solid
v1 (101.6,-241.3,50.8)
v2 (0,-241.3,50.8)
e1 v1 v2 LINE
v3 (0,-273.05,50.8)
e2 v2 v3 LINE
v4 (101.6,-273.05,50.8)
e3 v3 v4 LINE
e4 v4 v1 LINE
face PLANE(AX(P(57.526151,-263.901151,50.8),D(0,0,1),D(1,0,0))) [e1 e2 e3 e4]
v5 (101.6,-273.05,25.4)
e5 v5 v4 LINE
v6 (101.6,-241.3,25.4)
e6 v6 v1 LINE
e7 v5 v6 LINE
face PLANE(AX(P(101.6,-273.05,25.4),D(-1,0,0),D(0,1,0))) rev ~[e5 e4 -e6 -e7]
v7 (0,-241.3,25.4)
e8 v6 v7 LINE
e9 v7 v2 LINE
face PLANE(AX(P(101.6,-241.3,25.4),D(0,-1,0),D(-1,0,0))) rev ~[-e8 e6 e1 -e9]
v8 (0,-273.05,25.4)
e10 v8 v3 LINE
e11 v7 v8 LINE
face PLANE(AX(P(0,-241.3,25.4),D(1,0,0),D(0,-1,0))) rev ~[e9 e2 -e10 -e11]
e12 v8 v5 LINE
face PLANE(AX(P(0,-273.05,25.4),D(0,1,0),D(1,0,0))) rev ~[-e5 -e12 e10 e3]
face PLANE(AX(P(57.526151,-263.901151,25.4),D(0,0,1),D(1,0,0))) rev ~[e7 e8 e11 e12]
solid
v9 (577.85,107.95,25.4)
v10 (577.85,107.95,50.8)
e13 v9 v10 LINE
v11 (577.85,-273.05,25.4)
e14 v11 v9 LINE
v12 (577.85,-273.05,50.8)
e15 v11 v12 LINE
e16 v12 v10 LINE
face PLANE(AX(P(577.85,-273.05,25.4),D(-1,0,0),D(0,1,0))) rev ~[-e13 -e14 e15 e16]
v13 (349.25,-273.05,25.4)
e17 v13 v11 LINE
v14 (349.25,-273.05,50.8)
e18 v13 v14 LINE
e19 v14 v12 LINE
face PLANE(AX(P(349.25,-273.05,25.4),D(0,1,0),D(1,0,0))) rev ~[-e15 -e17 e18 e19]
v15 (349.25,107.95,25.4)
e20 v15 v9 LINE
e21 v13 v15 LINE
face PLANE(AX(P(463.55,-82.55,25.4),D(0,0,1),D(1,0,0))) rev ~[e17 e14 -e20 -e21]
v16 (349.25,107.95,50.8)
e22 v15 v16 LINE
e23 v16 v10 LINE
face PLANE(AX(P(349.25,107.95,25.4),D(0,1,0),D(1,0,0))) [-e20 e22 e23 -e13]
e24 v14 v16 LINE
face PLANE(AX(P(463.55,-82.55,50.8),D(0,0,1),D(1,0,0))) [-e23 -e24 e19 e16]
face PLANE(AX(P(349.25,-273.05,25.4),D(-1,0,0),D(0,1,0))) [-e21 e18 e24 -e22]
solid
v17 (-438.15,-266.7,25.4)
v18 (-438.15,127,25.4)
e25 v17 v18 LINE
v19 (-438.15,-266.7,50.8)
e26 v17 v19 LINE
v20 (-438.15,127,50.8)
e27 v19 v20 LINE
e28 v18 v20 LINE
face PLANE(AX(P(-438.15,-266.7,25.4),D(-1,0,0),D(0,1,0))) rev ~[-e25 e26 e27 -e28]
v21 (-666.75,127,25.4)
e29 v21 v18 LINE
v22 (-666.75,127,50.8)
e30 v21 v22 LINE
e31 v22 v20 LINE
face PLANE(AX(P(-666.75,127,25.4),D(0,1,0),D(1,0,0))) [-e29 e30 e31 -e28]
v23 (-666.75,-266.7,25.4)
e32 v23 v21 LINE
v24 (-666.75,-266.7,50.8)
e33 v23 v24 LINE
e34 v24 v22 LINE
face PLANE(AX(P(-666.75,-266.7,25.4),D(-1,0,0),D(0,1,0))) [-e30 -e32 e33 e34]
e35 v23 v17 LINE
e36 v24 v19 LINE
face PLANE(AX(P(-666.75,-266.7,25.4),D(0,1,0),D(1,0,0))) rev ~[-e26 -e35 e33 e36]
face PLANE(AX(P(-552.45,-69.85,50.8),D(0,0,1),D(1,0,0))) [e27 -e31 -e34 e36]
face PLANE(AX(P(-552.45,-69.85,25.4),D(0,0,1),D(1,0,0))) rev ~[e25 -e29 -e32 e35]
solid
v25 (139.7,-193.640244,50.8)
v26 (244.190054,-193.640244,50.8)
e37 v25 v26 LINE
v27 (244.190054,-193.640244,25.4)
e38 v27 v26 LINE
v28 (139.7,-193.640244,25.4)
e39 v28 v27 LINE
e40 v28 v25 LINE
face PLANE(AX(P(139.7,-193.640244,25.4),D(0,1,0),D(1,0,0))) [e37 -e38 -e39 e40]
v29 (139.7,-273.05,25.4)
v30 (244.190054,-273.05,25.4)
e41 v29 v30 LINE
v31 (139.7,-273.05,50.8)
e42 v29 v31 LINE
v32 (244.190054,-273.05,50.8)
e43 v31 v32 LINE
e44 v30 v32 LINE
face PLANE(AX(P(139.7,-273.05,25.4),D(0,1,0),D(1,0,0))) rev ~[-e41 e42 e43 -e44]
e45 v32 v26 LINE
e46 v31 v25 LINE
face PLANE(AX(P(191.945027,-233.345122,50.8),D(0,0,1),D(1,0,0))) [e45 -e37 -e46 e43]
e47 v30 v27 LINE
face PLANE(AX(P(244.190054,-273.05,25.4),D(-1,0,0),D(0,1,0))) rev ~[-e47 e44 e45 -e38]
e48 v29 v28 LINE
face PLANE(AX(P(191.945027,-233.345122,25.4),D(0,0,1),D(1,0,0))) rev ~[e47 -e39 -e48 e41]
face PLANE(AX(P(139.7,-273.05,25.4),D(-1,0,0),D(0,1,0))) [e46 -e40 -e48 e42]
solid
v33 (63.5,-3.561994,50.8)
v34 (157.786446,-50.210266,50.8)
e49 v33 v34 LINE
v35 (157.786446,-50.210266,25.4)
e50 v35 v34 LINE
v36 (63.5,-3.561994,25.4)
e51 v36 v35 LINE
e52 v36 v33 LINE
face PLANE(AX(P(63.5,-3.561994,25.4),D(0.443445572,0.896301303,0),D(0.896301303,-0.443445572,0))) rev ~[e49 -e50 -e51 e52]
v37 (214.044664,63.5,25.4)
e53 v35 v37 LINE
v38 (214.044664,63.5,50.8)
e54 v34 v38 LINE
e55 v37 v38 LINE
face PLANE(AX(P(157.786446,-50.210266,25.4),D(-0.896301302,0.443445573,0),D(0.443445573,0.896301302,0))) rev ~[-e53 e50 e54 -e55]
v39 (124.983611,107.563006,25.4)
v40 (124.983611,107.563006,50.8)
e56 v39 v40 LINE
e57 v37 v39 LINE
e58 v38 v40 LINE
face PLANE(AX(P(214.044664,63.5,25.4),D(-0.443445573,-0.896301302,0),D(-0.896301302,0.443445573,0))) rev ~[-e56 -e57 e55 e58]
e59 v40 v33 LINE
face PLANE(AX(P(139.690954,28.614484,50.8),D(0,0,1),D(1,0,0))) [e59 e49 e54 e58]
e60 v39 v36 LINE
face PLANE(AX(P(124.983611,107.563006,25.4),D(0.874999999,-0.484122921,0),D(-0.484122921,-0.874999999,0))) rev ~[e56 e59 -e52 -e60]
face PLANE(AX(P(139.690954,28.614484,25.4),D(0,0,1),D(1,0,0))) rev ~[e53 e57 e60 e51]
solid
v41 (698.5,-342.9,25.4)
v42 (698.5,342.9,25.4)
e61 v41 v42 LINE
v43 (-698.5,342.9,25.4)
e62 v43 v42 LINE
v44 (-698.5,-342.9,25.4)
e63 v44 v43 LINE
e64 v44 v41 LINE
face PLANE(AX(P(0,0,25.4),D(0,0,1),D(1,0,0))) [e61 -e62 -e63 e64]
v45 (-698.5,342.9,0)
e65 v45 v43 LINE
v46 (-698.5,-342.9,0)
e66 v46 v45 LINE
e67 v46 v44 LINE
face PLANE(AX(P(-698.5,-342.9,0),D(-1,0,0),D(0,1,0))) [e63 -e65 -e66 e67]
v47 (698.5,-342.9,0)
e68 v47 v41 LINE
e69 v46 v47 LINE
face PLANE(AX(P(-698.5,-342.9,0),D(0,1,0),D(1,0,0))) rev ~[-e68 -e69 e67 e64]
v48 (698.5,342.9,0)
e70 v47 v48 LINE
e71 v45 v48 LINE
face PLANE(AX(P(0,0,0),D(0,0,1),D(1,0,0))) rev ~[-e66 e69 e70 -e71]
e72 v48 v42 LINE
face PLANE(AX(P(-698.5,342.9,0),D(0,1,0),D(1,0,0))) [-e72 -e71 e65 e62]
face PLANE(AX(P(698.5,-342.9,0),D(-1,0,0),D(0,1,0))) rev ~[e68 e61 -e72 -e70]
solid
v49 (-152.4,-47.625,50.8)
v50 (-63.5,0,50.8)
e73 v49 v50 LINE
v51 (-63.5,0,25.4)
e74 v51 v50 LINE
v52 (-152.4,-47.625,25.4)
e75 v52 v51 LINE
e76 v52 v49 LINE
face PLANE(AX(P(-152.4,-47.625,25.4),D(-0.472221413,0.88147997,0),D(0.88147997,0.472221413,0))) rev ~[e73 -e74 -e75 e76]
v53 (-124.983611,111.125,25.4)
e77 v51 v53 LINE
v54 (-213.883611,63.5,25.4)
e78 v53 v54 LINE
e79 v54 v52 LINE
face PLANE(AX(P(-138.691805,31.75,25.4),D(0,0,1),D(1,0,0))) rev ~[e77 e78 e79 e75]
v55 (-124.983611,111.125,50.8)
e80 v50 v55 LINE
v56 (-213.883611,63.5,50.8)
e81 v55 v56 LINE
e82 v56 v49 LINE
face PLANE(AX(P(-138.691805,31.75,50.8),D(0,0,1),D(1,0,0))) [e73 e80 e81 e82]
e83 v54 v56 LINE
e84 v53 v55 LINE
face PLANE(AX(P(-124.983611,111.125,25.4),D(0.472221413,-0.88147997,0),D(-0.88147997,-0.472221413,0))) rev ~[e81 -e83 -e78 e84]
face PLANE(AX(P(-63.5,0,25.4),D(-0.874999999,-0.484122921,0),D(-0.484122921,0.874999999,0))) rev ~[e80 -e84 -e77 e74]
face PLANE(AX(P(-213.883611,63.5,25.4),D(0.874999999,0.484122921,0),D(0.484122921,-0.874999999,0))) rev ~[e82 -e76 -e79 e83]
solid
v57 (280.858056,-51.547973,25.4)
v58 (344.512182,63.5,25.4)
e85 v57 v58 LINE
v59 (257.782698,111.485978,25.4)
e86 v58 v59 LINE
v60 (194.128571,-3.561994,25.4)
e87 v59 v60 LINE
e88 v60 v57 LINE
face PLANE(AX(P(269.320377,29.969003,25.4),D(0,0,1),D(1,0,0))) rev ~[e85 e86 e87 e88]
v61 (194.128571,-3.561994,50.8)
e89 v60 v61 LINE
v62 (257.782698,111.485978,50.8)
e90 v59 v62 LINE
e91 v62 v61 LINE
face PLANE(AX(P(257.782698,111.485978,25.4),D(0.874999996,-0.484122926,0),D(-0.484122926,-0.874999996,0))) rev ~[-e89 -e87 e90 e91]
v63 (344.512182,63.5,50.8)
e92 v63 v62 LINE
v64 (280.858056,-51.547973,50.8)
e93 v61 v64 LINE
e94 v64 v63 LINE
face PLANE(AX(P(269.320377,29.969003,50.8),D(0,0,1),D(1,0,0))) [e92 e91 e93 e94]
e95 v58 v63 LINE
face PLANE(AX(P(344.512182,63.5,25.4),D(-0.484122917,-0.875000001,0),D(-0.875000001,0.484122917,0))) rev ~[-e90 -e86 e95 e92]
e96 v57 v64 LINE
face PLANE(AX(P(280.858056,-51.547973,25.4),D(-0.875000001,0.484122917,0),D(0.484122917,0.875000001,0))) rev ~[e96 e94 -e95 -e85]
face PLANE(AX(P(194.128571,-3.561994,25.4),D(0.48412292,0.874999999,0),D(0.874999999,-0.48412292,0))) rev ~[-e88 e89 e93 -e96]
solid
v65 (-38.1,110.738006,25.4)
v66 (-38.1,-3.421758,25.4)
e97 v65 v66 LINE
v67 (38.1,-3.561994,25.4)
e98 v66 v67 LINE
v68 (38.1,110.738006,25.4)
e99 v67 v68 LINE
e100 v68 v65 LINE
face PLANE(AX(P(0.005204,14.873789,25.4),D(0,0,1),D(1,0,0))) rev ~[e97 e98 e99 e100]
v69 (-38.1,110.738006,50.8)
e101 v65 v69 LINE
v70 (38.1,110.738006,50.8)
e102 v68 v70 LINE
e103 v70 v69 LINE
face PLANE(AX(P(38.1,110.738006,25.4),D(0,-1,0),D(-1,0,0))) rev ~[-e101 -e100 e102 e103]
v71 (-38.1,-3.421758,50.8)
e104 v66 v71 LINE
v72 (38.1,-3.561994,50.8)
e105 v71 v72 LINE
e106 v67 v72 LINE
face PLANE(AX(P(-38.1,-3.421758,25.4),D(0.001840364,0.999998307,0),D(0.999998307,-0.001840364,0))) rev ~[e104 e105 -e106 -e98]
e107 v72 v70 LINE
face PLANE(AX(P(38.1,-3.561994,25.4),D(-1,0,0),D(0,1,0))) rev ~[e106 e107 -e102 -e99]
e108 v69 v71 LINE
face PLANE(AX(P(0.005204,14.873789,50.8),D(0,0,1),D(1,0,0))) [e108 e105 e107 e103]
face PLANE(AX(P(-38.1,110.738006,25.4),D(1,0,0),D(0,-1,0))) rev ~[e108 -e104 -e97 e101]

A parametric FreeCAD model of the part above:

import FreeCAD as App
import Part
import Sketcher
from FreeCAD import Vector
Q = App.Units.Quantity


def add_polygon(sketch, points):
    """Adds a closed chain of lines whose ends are joined by coincident constraints."""
    first, n = sketch.GeometryCount, len(points)
    for a, b in zip(points, points[1:] + points[:1]):
        sketch.addGeometry(Part.LineSegment(App.Vector(*a, 0), App.Vector(*b, 0)), False)
    for i in range(n):
        sketch.addConstraint(Sketcher.Constraint("Coincident", first + i, 2, first + (i + 1) % n, 1))

doc = App.newDocument("Part")
params = doc.addObject("Spreadsheet::Sheet", "Params")
for row, (alias, value) in enumerate([
    ("sketch1_width", "55 in"),
    ("sketch1_height", "27 in"),
    ("pad1_length", "1 in"),
    ("sketch2_width", "3 in"),
    ("sketch2_width2", "9 in"),
    ("sketch2_width3", "4 in"),
    ("sketch2_height", "15 in"),
    ("sketch2_length", "5 in"),
    ("pad2_length", "1 in"),
], start=1):
    params.set(f"A{row}", alias)
    params.set(f"B{row}", "=" + value)
    params.setAlias(f"B{row}", alias)

body = doc.addObject("PartDesign::Body", "Body")

sketch1 = body.newObject("Sketcher::SketchObject", "Sketch")
sketch1.AttachmentSupport = (doc.getObject("XY_Plane"), [""])
sketch1.MapMode = "FlatFace"
add_polygon(sketch1, [(-698, 343), (-698, -343), (698, -343), (698, 343)])
sketch1.addConstraint([
    Sketcher.Constraint("Vertical", 0),
    Sketcher.Constraint("Horizontal", 1),
    Sketcher.Constraint("Vertical", 2),
    Sketcher.Constraint("Horizontal", 3),
    Sketcher.Constraint("Symmetric", 0, 2, 2, 2, -1, 1),
    Sketcher.Constraint("DistanceX", 1, 1, 1, 2, Q("55 in")),
    Sketcher.Constraint("DistanceY", 0, 2, 0, 1, Q("27 in")),
])
sketch1.setExpression("Constraints[9]", "Params.sketch1_width")
sketch1.setExpression("Constraints[10]", "Params.sketch1_height")
pad1 = body.newObject("PartDesign::Pad", "Pad")
pad1.Profile = sketch1
pad1.setExpression("Length", "Params.pad1_length")
body2 = doc.addObject("PartDesign::Body", "Body001")
body2.AllowCompound = True

sketch2 = body2.newObject("Sketcher::SketchObject", "Sketch001")
sketch2.AttachmentSupport = (doc.getObject("XY_Plane001"), [""])
sketch2.MapMode = "FlatFace"
sketch2.AttachmentOffset = App.Placement(Vector(0, 0, 1 * 25.4), App.Rotation())
add_polygon(sketch2, [(-38, -3), (38, -4), (38, 111), (-38, 111)])
add_polygon(sketch2, [(-667, 127), (-667, -267), (-438, -267), (-438, 127)])
add_polygon(sketch2, [(349, 108), (349, -273), (578, -273), (578, 108)])
add_polygon(sketch2, [(0, -273), (102, -273), (102, -241), (0, -241)])
add_polygon(sketch2, [(140, -194), (140, -273), (244, -273), (244, -194)])
add_polygon(sketch2, [(125, 108), (64, -4), (158, -50), (214, 64)])
add_polygon(sketch2, [(258, 111), (194, -4), (281, -52), (345, 64)])
add_polygon(sketch2, [(-64, 0), (-125, 111), (-214, 64), (-152, -48)])
sketch2.addConstraint([
    Sketcher.Constraint("Vertical", 1),
    Sketcher.Constraint("Horizontal", 2),
    Sketcher.Constraint("Vertical", 3),
    Sketcher.Constraint("Vertical", 4),
    Sketcher.Constraint("Horizontal", 5),
    Sketcher.Constraint("Vertical", 6),
    Sketcher.Constraint("Horizontal", 7),
    Sketcher.Constraint("Vertical", 8),
    Sketcher.Constraint("Horizontal", 9),
    Sketcher.Constraint("Vertical", 10),
    Sketcher.Constraint("Horizontal", 11),
    Sketcher.Constraint("Horizontal", 12),
    Sketcher.Constraint("Vertical", 13),
    Sketcher.Constraint("Horizontal", 14),
    Sketcher.Constraint("Vertical", 15),
    Sketcher.Constraint("Vertical", 16),
    Sketcher.Constraint("Horizontal", 17),
    Sketcher.Constraint("Vertical", 18),
    Sketcher.Constraint("Horizontal", 19),
    Sketcher.Constraint("PointOnObject", 14, 2, -2),
    Sketcher.Constraint("PointOnObject", 31, 2, -1),
    Sketcher.Constraint("Perpendicular", 21, 22),
    Sketcher.Constraint("Perpendicular", 22, 23),
    Sketcher.Constraint("Parallel", 20, 24),
    Sketcher.Constraint("Perpendicular", 24, 25),
    Sketcher.Constraint("Perpendicular", 25, 26),
    Sketcher.Constraint("Perpendicular", 26, 27),
    Sketcher.Constraint("Parallel", 28, 30),
    Sketcher.Constraint("Parallel", 29, 31),
    Sketcher.Constraint("Horizontal", 9, 2, 12, 2),
    Sketcher.Constraint("Horizontal", 15, 2, 16, 2),
    Sketcher.Constraint("Horizontal", 0, 2, 20, 2),
    Sketcher.Constraint("Horizontal", 20, 2, 24, 2),
    Sketcher.Constraint("Horizontal", 22, 2, 26, 2),
    Sketcher.Constraint("Horizontal", 26, 2, 29, 2),
    Sketcher.Constraint("Equal", 7, 9),
    Sketcher.Constraint("Equal", 20, 28),
    Sketcher.Constraint("DistanceX", 2, 2, 2, 1, Q("3 in")),
    Sketcher.Constraint("DistanceX", 5, 1, 5, 2, Q("9 in")),
    Sketcher.Constraint("DistanceX", 12, 1, 12, 2, Q("4 in")),
    Sketcher.Constraint("DistanceY", 8, 2, 8, 1, Q("15 in")),
    Sketcher.Constraint("Distance", 20, Q("5 in")),
    Sketcher.Constraint("DistanceY", 1, 1, 1, 2, Q("4.5 in")),
    Sketcher.Constraint("DistanceY", 4, 2, 4, 1, Q("15.5 in")),
    Sketcher.Constraint("DistanceY", -1, 1, 6, 2, Q("5 in")),
    Sketcher.Constraint("DistanceX", 30, 2, -1, 1, Q("6 in")),
    Sketcher.Constraint("DistanceX", 5, 2, 8, 2, Q("31 in")),
    Sketcher.Constraint("DistanceX", 0, 2, 20, 2, Q("1 in")),
    Sketcher.Constraint("DistanceX", 20, 2, 19, 2, Q("3 in")),
    Sketcher.Constraint("DistanceX", 31, 2, 3, 2, Q("1 in")),
    Sketcher.Constraint("DistanceY", 13, 1, 13, 2, Q("1.25 in")),
    Sketcher.Constraint("DistanceX", -1, 1, 0, 2, Q("1.5 in")),
    Sketcher.Constraint("DistanceY", 13, 2, -1, 1, Q("9.5 in")),
    Sketcher.Constraint("DistanceY", -1, 1, 22, 2, Q("2.5 in")),
    Sketcher.Constraint("DistanceX", 4, 2, -1, 1, Q("26.25 in")),
    Sketcher.Constraint("DistanceY", 30, 2, 28, 2, Q("6.25 in")),
    Sketcher.Constraint("DistanceY", 23, 2, 1, 2, Q("0.125 in")),
    Sketcher.Constraint("DistanceX", -1, 1, 27, 2, Q("257.782698 mm")),
    Sketcher.Constraint("DistanceX", 18, 2, 25, 2, Q("36.668002 mm")),
    Sketcher.Constraint("Distance", 25, Q("99.119412 mm")),
    Sketcher.Constraint("DistanceX", 17, 1, 17, 2, Q("104.490054 mm")),
    Sketcher.Constraint("DistanceY", 3, 2, 3, 1, Q("114.159764 mm")),
    Sketcher.Constraint("DistanceY", 16, 2, 16, 1, Q("79.409756 mm")),
    Sketcher.Constraint("DistanceY", 19, 2, 21, 2, Q("143.429978 mm")),
])
sketch2.setExpression("Constraints[69]", "Params.sketch2_width")
sketch2.setExpression("Constraints[70]", "Params.sketch2_width2")
sketch2.setExpression("Constraints[71]", "Params.sketch2_width3")
sketch2.setExpression("Constraints[72]", "Params.sketch2_height")
sketch2.setExpression("Constraints[73]", "Params.sketch2_length")
pad2 = body2.newObject("PartDesign::Pad", "Pad001")
pad2.Profile = sketch2
pad2.setExpression("Length", "Params.pad2_length")

doc.recompute()
